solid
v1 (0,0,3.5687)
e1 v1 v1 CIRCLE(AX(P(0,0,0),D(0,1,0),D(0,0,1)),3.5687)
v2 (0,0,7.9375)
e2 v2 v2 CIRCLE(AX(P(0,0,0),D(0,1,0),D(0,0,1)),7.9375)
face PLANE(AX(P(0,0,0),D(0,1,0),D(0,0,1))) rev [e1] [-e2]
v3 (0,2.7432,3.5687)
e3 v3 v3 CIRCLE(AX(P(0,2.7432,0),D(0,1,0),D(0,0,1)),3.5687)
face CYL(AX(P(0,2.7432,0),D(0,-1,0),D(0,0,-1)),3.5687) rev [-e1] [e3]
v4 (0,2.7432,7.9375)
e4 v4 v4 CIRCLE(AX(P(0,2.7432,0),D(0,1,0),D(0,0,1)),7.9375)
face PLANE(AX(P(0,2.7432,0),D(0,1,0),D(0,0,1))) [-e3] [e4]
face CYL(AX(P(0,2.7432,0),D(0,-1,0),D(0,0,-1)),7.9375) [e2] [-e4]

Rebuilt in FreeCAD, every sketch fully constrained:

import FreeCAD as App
import Part
import Sketcher
from FreeCAD import Vector
Q = App.Units.Quantity

doc = App.newDocument("Part")
body = doc.addObject("PartDesign::Body", "Body")

sketch1 = body.newObject("Sketcher::SketchObject", "Sketch")
sketch1.AttachmentSupport = (doc.getObject("XZ_Plane"), [""])
sketch1.MapMode = "FlatFace"
sketch1.addGeometry(Part.Circle(Vector(0, 0, 0), Vector(0, 0, 1), 7.9), False)
sketch1.addGeometry(Part.Circle(Vector(0, 0, 0), Vector(0, 0, 1), 3.6), False)
sketch1.addConstraint(Sketcher.Constraint("Coincident", 0, 3, -1, 1))
sketch1.addConstraint(Sketcher.Constraint("Coincident", 1, 3, -1, 1))
sketch1.addConstraint(Sketcher.Constraint("Diameter", 0, Q("0.625 in")))
sketch1.addConstraint(Sketcher.Constraint("Diameter", 1, Q("0.281 in")))
pad1 = body.newObject("PartDesign::Pad", "Pad")
pad1.Profile = sketch1
pad1.Length = Q("0.108 in")
pad1.Reversed = True

doc.recompute()
